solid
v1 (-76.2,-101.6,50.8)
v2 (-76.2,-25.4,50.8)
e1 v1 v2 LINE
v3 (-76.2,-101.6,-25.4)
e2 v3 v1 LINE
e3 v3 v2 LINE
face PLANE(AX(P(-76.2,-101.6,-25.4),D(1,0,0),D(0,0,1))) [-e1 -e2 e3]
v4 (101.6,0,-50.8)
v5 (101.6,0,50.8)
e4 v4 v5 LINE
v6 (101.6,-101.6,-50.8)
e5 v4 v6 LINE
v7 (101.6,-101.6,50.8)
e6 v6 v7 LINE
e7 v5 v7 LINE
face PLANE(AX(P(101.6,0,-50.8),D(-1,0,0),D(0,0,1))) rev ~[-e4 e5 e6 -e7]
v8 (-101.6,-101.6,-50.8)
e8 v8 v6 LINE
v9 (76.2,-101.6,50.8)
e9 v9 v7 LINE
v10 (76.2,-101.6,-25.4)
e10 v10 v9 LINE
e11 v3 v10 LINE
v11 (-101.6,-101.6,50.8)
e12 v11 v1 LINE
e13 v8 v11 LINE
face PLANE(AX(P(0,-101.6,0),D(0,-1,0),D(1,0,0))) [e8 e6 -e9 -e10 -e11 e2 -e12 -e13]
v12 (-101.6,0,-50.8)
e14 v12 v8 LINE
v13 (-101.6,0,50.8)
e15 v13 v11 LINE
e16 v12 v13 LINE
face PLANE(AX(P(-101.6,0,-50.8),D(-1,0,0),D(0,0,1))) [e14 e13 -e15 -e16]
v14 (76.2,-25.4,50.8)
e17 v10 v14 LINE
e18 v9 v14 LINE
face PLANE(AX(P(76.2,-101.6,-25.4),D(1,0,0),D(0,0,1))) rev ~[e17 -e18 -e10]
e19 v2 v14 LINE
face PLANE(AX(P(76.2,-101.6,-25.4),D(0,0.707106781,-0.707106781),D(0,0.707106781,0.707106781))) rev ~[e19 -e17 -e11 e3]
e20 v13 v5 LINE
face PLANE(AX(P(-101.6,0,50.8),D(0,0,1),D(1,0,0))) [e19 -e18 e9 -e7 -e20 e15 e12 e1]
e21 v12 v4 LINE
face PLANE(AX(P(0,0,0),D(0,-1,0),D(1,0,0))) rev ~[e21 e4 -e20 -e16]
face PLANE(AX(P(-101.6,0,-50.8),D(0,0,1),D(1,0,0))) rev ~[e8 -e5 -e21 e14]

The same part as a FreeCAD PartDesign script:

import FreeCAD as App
import Part
import Sketcher
Q = App.Units.Quantity

doc = App.newDocument("Part")
body = doc.addObject("PartDesign::Body", "Body")

sketch1 = doc.addObject("Sketcher::SketchObject", "Sketch")
body.addObject(sketch1)
sketch1.AttachmentSupport = (doc.XZ_Plane, [""])
sketch1.MapMode = "FlatFace"
sketch1.addGeometry([
    Part.LineSegment(App.Vector(-102, 51, 0), App.Vector(-102, -51, 0)),
    Part.LineSegment(App.Vector(-102, -51, 0), App.Vector(102, -51, 0)),
    Part.LineSegment(App.Vector(102, -51, 0), App.Vector(102, 51, 0)),
    Part.LineSegment(App.Vector(102, 51, 0), App.Vector(-102, 51, 0)),
], False)
sketch1.addConstraint([
    Sketcher.Constraint("Coincident", 0, 2, 1, 1),
    Sketcher.Constraint("Coincident", 1, 2, 2, 1),
    Sketcher.Constraint("Coincident", 2, 2, 3, 1),
    Sketcher.Constraint("Coincident", 3, 2, 0, 1),
    Sketcher.Constraint("Vertical", 0),
    Sketcher.Constraint("Horizontal", 1),
    Sketcher.Constraint("Vertical", 2),
    Sketcher.Constraint("Horizontal", 3),
    Sketcher.Constraint("Symmetric", 0, 2, 2, 2, -1, 1),
    Sketcher.Constraint("DistanceX", 1, 1, 1, 2, Q("8 in")),
    Sketcher.Constraint("DistanceY", 0, 2, 0, 1, Q("4 in")),
])
pad1 = doc.addObject("PartDesign::Pad", "Pad")
body.addObject(pad1)
pad1.Profile = sketch1
pad1.Length = Q("4 in")

sketch2 = doc.addObject("Sketcher::SketchObject", "Sketch001")
body.addObject(sketch2)
sketch2.AttachmentSupport = (doc.XZ_Plane, [""])
sketch2.MapMode = "FlatFace"
sketch2.AttachmentOffset = App.Placement(App.Vector(0, 0, 4 * 25.4), App.Rotation())
sketch2.addGeometry([
    Part.LineSegment(App.Vector(-76, 51, 0), App.Vector(-76, -25, 0)),
    Part.LineSegment(App.Vector(-76, -25, 0), App.Vector(76, -25, 0)),
    Part.LineSegment(App.Vector(76, -25, 0), App.Vector(76, 51, 0)),
    Part.LineSegment(App.Vector(76, 51, 0), App.Vector(-76, 51, 0)),
], False)
sketch2.addConstraint([
    Sketcher.Constraint("Coincident", 0, 2, 1, 1),
    Sketcher.Constraint("Coincident", 1, 2, 2, 1),
    Sketcher.Constraint("Coincident", 2, 2, 3, 1),
    Sketcher.Constraint("Coincident", 3, 2, 0, 1),
    Sketcher.Constraint("Vertical", 0),
    Sketcher.Constraint("Horizontal", 1),
    Sketcher.Constraint("Vertical", 2),
    Sketcher.Constraint("Horizontal", 3),
    Sketcher.Constraint("DistanceX", 1, 1, 1, 2, Q("6 in")),
    Sketcher.Constraint("DistanceY", 0, 2, 0, 1, Q("3 in")),
    Sketcher.Constraint("DistanceX", 0, 2, -1, 1, Q("3 in")),
    Sketcher.Constraint("DistanceY", 0, 2, -1, 1, Q("1 in")),
])
pocket1 = doc.addObject("PartDesign::Pocket", "Pocket")
body.addObject(pocket1)
pocket1.Profile = sketch2
pocket1.Length = Q("3 in")

sketch3 = doc.addObject("Sketcher::SketchObject", "Sketch002")
body.addObject(sketch3)
sketch3.AttachmentSupport = (doc.YZ_Plane, [""])
sketch3.MapMode = "FlatFace"
sketch3.AttachmentOffset = App.Placement(App.Vector(0, 0, 3 * 25.4), App.Rotation())
sketch3.addGeometry([
    Part.LineSegment(App.Vector(-25, -25, 0), App.Vector(-102, -25, 0)),
    Part.LineSegment(App.Vector(-102, -25, 0), App.Vector(-25, 51, 0)),
    Part.LineSegment(App.Vector(-25, 51, 0), App.Vector(-25, -25, 0)),
], False)
sketch3.addConstraint([
    Sketcher.Constraint("Coincident", 0, 2, 1, 1),
    Sketcher.Constraint("Coincident", 1, 2, 2, 1),
    Sketcher.Constraint("Coincident", 2, 2, 0, 1),
    Sketcher.Constraint("Horizontal", 0),
    Sketcher.Constraint("Vertical", 2),
    Sketcher.Constraint("Equal", 0, 2),
    Sketcher.Constraint("DistanceX", 0, 2, 0, 1, Q("3 in")),
    Sketcher.Constraint("DistanceX", 0, 2, -1, 1, Q("4 in")),
    Sketcher.Constraint("DistanceY", 0, 2, -1, 1, Q("1 in")),
])
pad2 = doc.addObject("PartDesign::Pad", "Pad001")
body.addObject(pad2)
pad2.Profile = sketch3
pad2.Length = Q("6 in")
pad2.Reversed = True

doc.recompute()
